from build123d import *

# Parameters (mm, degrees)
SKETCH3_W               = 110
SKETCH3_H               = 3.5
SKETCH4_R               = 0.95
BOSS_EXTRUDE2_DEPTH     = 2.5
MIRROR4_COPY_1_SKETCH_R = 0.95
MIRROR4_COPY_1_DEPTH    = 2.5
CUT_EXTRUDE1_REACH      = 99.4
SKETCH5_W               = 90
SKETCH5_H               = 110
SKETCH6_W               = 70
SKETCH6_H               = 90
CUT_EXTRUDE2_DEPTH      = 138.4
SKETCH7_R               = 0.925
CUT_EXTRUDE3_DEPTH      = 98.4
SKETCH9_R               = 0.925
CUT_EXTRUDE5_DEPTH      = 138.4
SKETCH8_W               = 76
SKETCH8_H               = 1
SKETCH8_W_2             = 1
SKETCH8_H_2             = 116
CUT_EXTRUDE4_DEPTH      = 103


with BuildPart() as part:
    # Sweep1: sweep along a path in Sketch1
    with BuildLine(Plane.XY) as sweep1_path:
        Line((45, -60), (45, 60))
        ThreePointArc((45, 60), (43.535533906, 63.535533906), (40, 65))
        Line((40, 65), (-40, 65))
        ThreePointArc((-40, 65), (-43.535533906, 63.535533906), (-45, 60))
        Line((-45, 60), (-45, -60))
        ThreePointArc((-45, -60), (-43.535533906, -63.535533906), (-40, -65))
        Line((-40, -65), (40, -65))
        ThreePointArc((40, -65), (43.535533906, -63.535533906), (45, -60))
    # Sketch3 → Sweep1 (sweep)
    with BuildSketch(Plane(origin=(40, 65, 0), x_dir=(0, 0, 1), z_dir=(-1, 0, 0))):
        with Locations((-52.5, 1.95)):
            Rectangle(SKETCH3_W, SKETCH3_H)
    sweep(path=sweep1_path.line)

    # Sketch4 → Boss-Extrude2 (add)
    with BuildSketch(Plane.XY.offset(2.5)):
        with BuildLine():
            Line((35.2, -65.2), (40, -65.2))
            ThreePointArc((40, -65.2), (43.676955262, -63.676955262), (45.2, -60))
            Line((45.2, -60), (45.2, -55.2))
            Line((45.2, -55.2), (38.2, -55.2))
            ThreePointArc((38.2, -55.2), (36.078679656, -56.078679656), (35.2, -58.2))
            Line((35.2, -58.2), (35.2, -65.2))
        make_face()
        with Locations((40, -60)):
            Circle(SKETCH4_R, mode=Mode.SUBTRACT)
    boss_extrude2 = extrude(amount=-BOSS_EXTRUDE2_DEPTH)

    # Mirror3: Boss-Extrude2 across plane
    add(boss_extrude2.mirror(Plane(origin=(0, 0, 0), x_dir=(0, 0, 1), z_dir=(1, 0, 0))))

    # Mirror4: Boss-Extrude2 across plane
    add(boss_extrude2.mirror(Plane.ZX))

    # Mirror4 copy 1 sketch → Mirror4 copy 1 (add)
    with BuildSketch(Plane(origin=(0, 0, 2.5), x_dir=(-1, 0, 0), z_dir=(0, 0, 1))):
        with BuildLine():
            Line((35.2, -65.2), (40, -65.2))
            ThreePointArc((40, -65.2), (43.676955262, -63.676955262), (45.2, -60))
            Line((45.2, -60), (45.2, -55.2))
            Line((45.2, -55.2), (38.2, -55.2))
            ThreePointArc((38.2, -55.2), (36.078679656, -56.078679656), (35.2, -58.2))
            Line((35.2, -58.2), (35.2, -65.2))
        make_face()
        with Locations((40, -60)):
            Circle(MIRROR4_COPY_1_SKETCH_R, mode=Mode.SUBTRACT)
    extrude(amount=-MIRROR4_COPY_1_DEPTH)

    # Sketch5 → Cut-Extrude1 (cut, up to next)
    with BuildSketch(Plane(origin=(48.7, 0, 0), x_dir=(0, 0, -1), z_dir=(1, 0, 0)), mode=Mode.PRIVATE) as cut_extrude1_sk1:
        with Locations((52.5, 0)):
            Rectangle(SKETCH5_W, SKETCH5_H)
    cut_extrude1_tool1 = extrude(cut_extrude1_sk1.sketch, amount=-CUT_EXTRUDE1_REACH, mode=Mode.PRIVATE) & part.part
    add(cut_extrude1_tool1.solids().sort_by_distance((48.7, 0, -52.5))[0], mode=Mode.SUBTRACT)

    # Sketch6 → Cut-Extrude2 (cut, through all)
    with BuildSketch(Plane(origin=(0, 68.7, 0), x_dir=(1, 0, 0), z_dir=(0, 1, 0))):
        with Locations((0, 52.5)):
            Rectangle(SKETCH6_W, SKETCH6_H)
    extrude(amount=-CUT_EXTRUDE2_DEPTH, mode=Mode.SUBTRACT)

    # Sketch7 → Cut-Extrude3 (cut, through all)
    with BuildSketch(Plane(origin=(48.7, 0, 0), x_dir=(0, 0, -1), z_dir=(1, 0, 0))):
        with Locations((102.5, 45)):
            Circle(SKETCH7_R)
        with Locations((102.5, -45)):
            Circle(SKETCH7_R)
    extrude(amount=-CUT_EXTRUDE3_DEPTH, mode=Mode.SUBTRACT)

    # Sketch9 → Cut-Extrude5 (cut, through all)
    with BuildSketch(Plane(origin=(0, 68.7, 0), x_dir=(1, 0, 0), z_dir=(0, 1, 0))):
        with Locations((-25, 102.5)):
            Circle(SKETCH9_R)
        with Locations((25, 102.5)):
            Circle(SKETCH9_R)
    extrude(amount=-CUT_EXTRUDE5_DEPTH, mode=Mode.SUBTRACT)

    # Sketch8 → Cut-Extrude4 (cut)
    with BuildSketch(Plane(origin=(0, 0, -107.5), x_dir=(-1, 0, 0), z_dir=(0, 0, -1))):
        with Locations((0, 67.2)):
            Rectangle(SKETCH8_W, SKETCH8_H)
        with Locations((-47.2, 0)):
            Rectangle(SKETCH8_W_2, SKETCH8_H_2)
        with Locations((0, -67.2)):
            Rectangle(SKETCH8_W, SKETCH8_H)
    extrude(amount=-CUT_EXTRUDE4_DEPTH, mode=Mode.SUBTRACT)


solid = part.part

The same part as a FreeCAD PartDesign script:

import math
import FreeCAD as App
import Part
import Sketcher
from FreeCAD import Vector
Q = App.Units.Quantity


def add_polygon(sketch, points):
    """Adds a closed chain of lines whose ends are joined by coincident constraints."""
    first, n = sketch.GeometryCount, len(points)
    for a, b in zip(points, points[1:] + points[:1]):
        sketch.addGeometry(Part.LineSegment(App.Vector(*a, 0), App.Vector(*b, 0)), False)
    for i in range(n):
        sketch.addConstraint(Sketcher.Constraint("Coincident", first + i, 2, first + (i + 1) % n, 1))

doc = App.newDocument("Part")
body = doc.addObject("PartDesign::Body", "Body")

# Sketch on YZ plane
sketch1 = body.newObject("Sketcher::SketchObject", "Sketch")
sketch1.AttachmentSupport = (doc.getObject("YZ_Plane"), [""])
sketch1.MapMode = "FlatFace"
sketch1.AttachmentOffset = App.Placement(Vector(0, 0, 40), App.Rotation())
add_polygon(sketch1, [(68.7, -107.5), (65.2, -107.5), (65.2, 2.5), (68.7, 2.5)])  # lines 0-3
sketch1.addConstraint(Sketcher.Constraint("Horizontal", 0))
sketch1.addConstraint(Sketcher.Constraint("Vertical", 1))
sketch1.addConstraint(Sketcher.Constraint("Horizontal", 2))
sketch1.addConstraint(Sketcher.Constraint("Vertical", 3))
sketch1.addConstraint(Sketcher.Constraint("DistanceY", 1, 1, 1, 2, Q("110 mm")))
sketch1.addConstraint(Sketcher.Constraint("DistanceX", 0, 2, 0, 1, Q("3.5 mm")))
sketch1.addConstraint(Sketcher.Constraint("DistanceX", -1, 1, 0, 2, Q("65.2 mm")))
sketch1.addConstraint(Sketcher.Constraint("DistanceY", 0, 2, -1, 1, Q("107.5 mm")))

# Sketch on XY plane
sketch2 = body.newObject("Sketcher::SketchObject", "Sketch001")
sketch2.AttachmentSupport = (doc.getObject("XY_Plane"), [""])
sketch2.MapMode = "FlatFace"
sketch2.addGeometry(Part.LineSegment(Vector(45, -60, 0), Vector(45, 60, 0)), False)
sketch2.addGeometry(Part.ArcOfCircle(Part.Circle(Vector(40, 60, 0), Vector(0, 0, 1), 5), math.radians(0), math.radians(90)), False)
sketch2.addGeometry(Part.LineSegment(Vector(40, 65, 0), Vector(-40, 65, 0)), False)
sketch2.addGeometry(Part.ArcOfCircle(Part.Circle(Vector(-40, 60, 0), Vector(0, 0, 1), 5), math.radians(90), math.radians(180)), False)
sketch2.addGeometry(Part.LineSegment(Vector(-45, 60, 0), Vector(-45, -60, 0)), False)
sketch2.addGeometry(Part.ArcOfCircle(Part.Circle(Vector(-40, -60, 0), Vector(0, 0, 1), 5), math.radians(180), math.radians(270)), False)
sketch2.addGeometry(Part.LineSegment(Vector(-40, -65, 0), Vector(40, -65, 0)), False)
sketch2.addGeometry(Part.ArcOfCircle(Part.Circle(Vector(40, -60, 0), Vector(0, 0, 1), 5), math.radians(-90), math.radians(0)), False)
sketch2.addConstraint(Sketcher.Constraint("Tangent", 0, 2, 1, 1))
sketch2.addConstraint(Sketcher.Constraint("Tangent", 1, 2, 2, 1))
sketch2.addConstraint(Sketcher.Constraint("Tangent", 2, 2, 3, 1))
sketch2.addConstraint(Sketcher.Constraint("Tangent", 3, 2, 4, 1))
sketch2.addConstraint(Sketcher.Constraint("Tangent", 4, 2, 5, 1))
sketch2.addConstraint(Sketcher.Constraint("Tangent", 5, 2, 6, 1))
sketch2.addConstraint(Sketcher.Constraint("Tangent", 6, 2, 7, 1))
sketch2.addConstraint(Sketcher.Constraint("Tangent", 7, 2, 0, 1))
sketch2.addConstraint(Sketcher.Constraint("Vertical", 0))
sketch2.addConstraint(Sketcher.Constraint("Horizontal", 2))
sketch2.addConstraint(Sketcher.Constraint("Vertical", 4))
sketch2.addConstraint(Sketcher.Constraint("Horizontal", 6))
sketch2.addConstraint(Sketcher.Constraint("Equal", 1, 3))
sketch2.addConstraint(Sketcher.Constraint("Equal", 3, 5))
sketch2.addConstraint(Sketcher.Constraint("Equal", 5, 7))
sketch2.addConstraint(Sketcher.Constraint("Symmetric", 1, 3, 5, 3, -1, 1))
sketch2.addConstraint(Sketcher.Constraint("Radius", 1, Q("5 mm")))
sketch2.addConstraint(Sketcher.Constraint("DistanceX", 2, 2, 2, 1, Q("80 mm")))
sketch2.addConstraint(Sketcher.Constraint("DistanceY", 0, 1, 0, 2, Q("120 mm")))
doc.recompute()

additivepipe = body.newObject("PartDesign::AdditivePipe", "AdditivePipe")
additivepipe.Profile = sketch1
additivepipe.Spine = (sketch2, ["Edge1", "Edge2", "Edge3", "Edge4", "Edge5", "Edge6", "Edge7", "Edge8"])

# Sketch on XY plane
sketch3 = body.newObject("Sketcher::SketchObject", "Sketch002")
sketch3.AttachmentSupport = (doc.getObject("XY_Plane"), [""])
sketch3.MapMode = "FlatFace"
sketch3.AttachmentOffset = App.Placement(Vector(0, 0, 2.5), App.Rotation())
sketch3.addGeometry(Part.LineSegment(Vector(35.2, -65.2, 0), Vector(40, -65.2, 0)), False)
sketch3.addGeometry(Part.ArcOfCircle(Part.Circle(Vector(40, -60, 0), Vector(0, 0, 1), 5.2), math.radians(-90), math.radians(0)), False)
sketch3.addGeometry(Part.LineSegment(Vector(45.2, -60, 0), Vector(45.2, -55.2, 0)), False)
sketch3.addGeometry(Part.LineSegment(Vector(45.2, -55.2, 0), Vector(38.2, -55.2, 0)), False)
sketch3.addGeometry(Part.ArcOfCircle(Part.Circle(Vector(38.2, -58.2, 0), Vector(0, 0, 1), 3), math.radians(90), math.radians(180)), False)
sketch3.addGeometry(Part.LineSegment(Vector(35.2, -58.2, 0), Vector(35.2, -65.2, 0)), False)
sketch3.addGeometry(Part.Circle(Vector(40, -60, 0), Vector(0, 0, 1), 0.95), False)
sketch3.addConstraint(Sketcher.Constraint("Tangent", 0, 2, 1, 1))
sketch3.addConstraint(Sketcher.Constraint("Tangent", 1, 2, 2, 1))
sketch3.addConstraint(Sketcher.Constraint("Coincident", 2, 2, 3, 1))
sketch3.addConstraint(Sketcher.Constraint("Tangent", 3, 2, 4, 1))
sketch3.addConstraint(Sketcher.Constraint("Tangent", 4, 2, 5, 1))
sketch3.addConstraint(Sketcher.Constraint("Coincident", 5, 2, 0, 1))
sketch3.addConstraint(Sketcher.Constraint("Horizontal", 0))
sketch3.addConstraint(Sketcher.Constraint("Vertical", 2))
sketch3.addConstraint(Sketcher.Constraint("Horizontal", 3))
sketch3.addConstraint(Sketcher.Constraint("Vertical", 5))
sketch3.addConstraint(Sketcher.Constraint("Coincident", 6, 3, 1, 3))
sketch3.addConstraint(Sketcher.Constraint("Equal", 0, 2))
sketch3.addConstraint(Sketcher.Constraint("Radius", 4, Q("3 mm")))
sketch3.addConstraint(Sketcher.Constraint("Diameter", 6, Q("1.9 mm")))
sketch3.addConstraint(Sketcher.Constraint("Radius", 1, Q("5.2 mm")))
sketch3.addConstraint(Sketcher.Constraint("DistanceX", 3, 2, 3, 1, Q("7 mm")))
sketch3.addConstraint(Sketcher.Constraint("DistanceX", -1, 1, 1, 3, Q("40 mm")))
sketch3.addConstraint(Sketcher.Constraint("DistanceY", 1, 3, -1, 1, Q("60 mm")))
pad1 = body.newObject("PartDesign::Pad", "Pad")
pad1.Profile = sketch3
pad1.Length = 2.5
pad1.Reversed = True
doc.recompute()

mirrored = body.newObject("PartDesign::Mirrored", "Mirrored")
mirrored.Originals = [pad1]
mirrored.MirrorPlane = (doc.getObject("YZ_Plane"), [""])
body.Tip = mirrored
doc.recompute()

mirrored2 = body.newObject("PartDesign::Mirrored", "Mirrored001")
mirrored2.Originals = [pad1]
mirrored2.MirrorPlane = (doc.getObject("XZ_Plane"), [""])
body.Tip = mirrored2

# Sketch on XY plane
sketch4 = body.newObject("Sketcher::SketchObject", "Sketch003")
sketch4.AttachmentSupport = (doc.getObject("XY_Plane"), [""])
sketch4.MapMode = "FlatFace"
sketch4.AttachmentOffset = App.Placement(Vector(0, 0, 2.5), App.Rotation())
sketch4.addGeometry(Part.LineSegment(Vector(-35.2, 65.2, 0), Vector(-40, 65.2, 0)), False)
sketch4.addGeometry(Part.ArcOfCircle(Part.Circle(Vector(-40, 60, 0), Vector(0, 0, 1), 5.2), math.radians(90), math.radians(180)), False)
sketch4.addGeometry(Part.LineSegment(Vector(-45.2, 60, 0), Vector(-45.2, 55.2, 0)), False)
sketch4.addGeometry(Part.LineSegment(Vector(-45.2, 55.2, 0), Vector(-38.2, 55.2, 0)), False)
sketch4.addGeometry(Part.ArcOfCircle(Part.Circle(Vector(-38.2, 58.2, 0), Vector(0, 0, 1), 3), math.radians(-90), math.radians(0)), False)
sketch4.addGeometry(Part.LineSegment(Vector(-35.2, 58.2, 0), Vector(-35.2, 65.2, 0)), False)
sketch4.addGeometry(Part.Circle(Vector(-40, 60, 0), Vector(0, 0, 1), 0.95), False)
sketch4.addConstraint(Sketcher.Constraint("Tangent", 0, 2, 1, 1))
sketch4.addConstraint(Sketcher.Constraint("Tangent", 1, 2, 2, 1))
sketch4.addConstraint(Sketcher.Constraint("Coincident", 2, 2, 3, 1))
sketch4.addConstraint(Sketcher.Constraint("Tangent", 3, 2, 4, 1))
sketch4.addConstraint(Sketcher.Constraint("Tangent", 4, 2, 5, 1))
sketch4.addConstraint(Sketcher.Constraint("Coincident", 5, 2, 0, 1))
sketch4.addConstraint(Sketcher.Constraint("Horizontal", 0))
sketch4.addConstraint(Sketcher.Constraint("Vertical", 2))
sketch4.addConstraint(Sketcher.Constraint("Horizontal", 3))
sketch4.addConstraint(Sketcher.Constraint("Vertical", 5))
sketch4.addConstraint(Sketcher.Constraint("Coincident", 6, 3, 1, 3))
sketch4.addConstraint(Sketcher.Constraint("Equal", 0, 2))
sketch4.addConstraint(Sketcher.Constraint("Radius", 4, Q("3 mm")))
sketch4.addConstraint(Sketcher.Constraint("Diameter", 6, Q("1.9 mm")))
sketch4.addConstraint(Sketcher.Constraint("Radius", 1, Q("5.2 mm")))
sketch4.addConstraint(Sketcher.Constraint("DistanceX", 3, 1, 3, 2, Q("7 mm")))
sketch4.addConstraint(Sketcher.Constraint("DistanceX", 1, 3, -1, 1, Q("40 mm")))
sketch4.addConstraint(Sketcher.Constraint("DistanceY", -1, 1, 1, 3, Q("60 mm")))
pad2 = body.newObject("PartDesign::Pad", "Pad001")
pad2.Profile = sketch4
pad2.Length = 2.5
pad2.Reversed = True

# Sketch on YZ plane
sketch5 = body.newObject("Sketcher::SketchObject", "Sketch004")
sketch5.AttachmentSupport = (doc.getObject("YZ_Plane"), [""])
sketch5.MapMode = "FlatFace"
sketch5.AttachmentOffset = App.Placement(Vector(0, 0, 48.7), App.Rotation())
add_polygon(sketch5, [(55, -7.5), (-55, -7.5), (-55, -97.5), (55, -97.5)])  # lines 0-3
sketch5.addConstraint(Sketcher.Constraint("Horizontal", 0))
sketch5.addConstraint(Sketcher.Constraint("Vertical", 1))
sketch5.addConstraint(Sketcher.Constraint("Horizontal", 2))
sketch5.addConstraint(Sketcher.Constraint("Vertical", 3))
sketch5.addConstraint(Sketcher.Constraint("DistanceX", 0, 2, 0, 1, Q("110 mm")))
sketch5.addConstraint(Sketcher.Constraint("DistanceY", 1, 2, 1, 1, Q("90 mm")))
sketch5.addConstraint(Sketcher.Constraint("DistanceX", 0, 2, -1, 1, Q("55 mm")))
sketch5.addConstraint(Sketcher.Constraint("DistanceY", 0, 2, -1, 1, Q("7.5 mm")))
pocket1 = body.newObject("PartDesign::Pocket", "Pocket")
pocket1.Profile = sketch5
pocket1.Type = "UpToFirst"

# Sketch on XZ plane
sketch6 = body.newObject("Sketcher::SketchObject", "Sketch005")
sketch6.AttachmentSupport = (doc.getObject("XZ_Plane"), [""])
sketch6.MapMode = "FlatFace"
sketch6.AttachmentOffset = App.Placement(Vector(0, 0, -68.7), App.Rotation())
add_polygon(sketch6, [(-35, -97.5), (-35, -7.5), (35, -7.5), (35, -97.5)])  # lines 0-3
sketch6.addConstraint(Sketcher.Constraint("Vertical", 0))
sketch6.addConstraint(Sketcher.Constraint("Horizontal", 1))
sketch6.addConstraint(Sketcher.Constraint("Vertical", 2))
sketch6.addConstraint(Sketcher.Constraint("Horizontal", 3))
sketch6.addConstraint(Sketcher.Constraint("DistanceX", 1, 1, 1, 2, Q("70 mm")))
sketch6.addConstraint(Sketcher.Constraint("DistanceY", 0, 1, 0, 2, Q("90 mm")))
sketch6.addConstraint(Sketcher.Constraint("DistanceX", 0, 2, -1, 1, Q("35 mm")))
sketch6.addConstraint(Sketcher.Constraint("DistanceY", 0, 2, -1, 1, Q("7.5 mm")))
pocket2 = body.newObject("PartDesign::Pocket", "Pocket001")
pocket2.Profile = sketch6
pocket2.Type = "ThroughAll"
pocket2.Reversed = True

# Sketch on YZ plane
sketch7 = body.newObject("Sketcher::SketchObject", "Sketch006")
sketch7.AttachmentSupport = (doc.getObject("YZ_Plane"), [""])
sketch7.MapMode = "FlatFace"
sketch7.AttachmentOffset = App.Placement(Vector(0, 0, 48.7), App.Rotation())
sketch7.addGeometry(Part.Circle(Vector(45, -102.5, 0), Vector(0, 0, 1), 0.925), False)
sketch7.addGeometry(Part.Circle(Vector(-45, -102.5, 0), Vector(0, 0, 1), 0.925), False)
sketch7.addConstraint(Sketcher.Constraint("Equal", 0, 1))
sketch7.addConstraint(Sketcher.Constraint("Symmetric", 0, 3, 1, 3, -2))
sketch7.addConstraint(Sketcher.Constraint("Diameter", 0, Q("1.85 mm")))
sketch7.addConstraint(Sketcher.Constraint("DistanceX", -1, 1, 0, 3, Q("45 mm")))
sketch7.addConstraint(Sketcher.Constraint("DistanceY", 0, 3, -1, 1, Q("102.5 mm")))
pocket3 = body.newObject("PartDesign::Pocket", "Pocket002")
pocket3.Profile = sketch7
pocket3.Type = "ThroughAll"

# Sketch on XZ plane
sketch8 = body.newObject("Sketcher::SketchObject", "Sketch007")
sketch8.AttachmentSupport = (doc.getObject("XZ_Plane"), [""])
sketch8.MapMode = "FlatFace"
sketch8.AttachmentOffset = App.Placement(Vector(0, 0, -68.7), App.Rotation())
sketch8.addGeometry(Part.Circle(Vector(-25, -102.5, 0), Vector(0, 0, 1), 0.925), False)
sketch8.addGeometry(Part.Circle(Vector(25, -102.5, 0), Vector(0, 0, 1), 0.925), False)
sketch8.addConstraint(Sketcher.Constraint("Equal", 0, 1))
sketch8.addConstraint(Sketcher.Constraint("Symmetric", 0, 3, 1, 3, -2))
sketch8.addConstraint(Sketcher.Constraint("Diameter", 0, Q("1.85 mm")))
sketch8.addConstraint(Sketcher.Constraint("DistanceX", 0, 3, -1, 1, Q("25 mm")))
sketch8.addConstraint(Sketcher.Constraint("DistanceY", 0, 3, -1, 1, Q("102.5 mm")))
pocket4 = body.newObject("PartDesign::Pocket", "Pocket003")
pocket4.Profile = sketch8
pocket4.Type = "ThroughAll"
pocket4.Reversed = True

# Sketch on XY plane
sketch9 = body.newObject("Sketcher::SketchObject", "Sketch008")
sketch9.AttachmentSupport = (doc.getObject("XY_Plane"), [""])
sketch9.MapMode = "FlatFace"
sketch9.AttachmentOffset = App.Placement(Vector(0, 0, -107.5), App.Rotation())
add_polygon(sketch9, [(38, 67.7), (38, 66.7), (-38, 66.7), (-38, 67.7)])  # lines 0-3
add_polygon(sketch9, [(47.7, 58), (47.7, -58), (46.7, -58), (46.7, 58)])  # lines 4-7
add_polygon(sketch9, [(38, -66.7), (38, -67.7), (-38, -67.7), (-38, -66.7)])  # lines 8-11
sketch9.addConstraint(Sketcher.Constraint("Vertical", 0))
sketch9.addConstraint(Sketcher.Constraint("Horizontal", 1))
sketch9.addConstraint(Sketcher.Constraint("Vertical", 2))
sketch9.addConstraint(Sketcher.Constraint("Horizontal", 3))
sketch9.addConstraint(Sketcher.Constraint("Vertical", 4))
sketch9.addConstraint(Sketcher.Constraint("Horizontal", 5))
sketch9.addConstraint(Sketcher.Constraint("Vertical", 6))
sketch9.addConstraint(Sketcher.Constraint("Horizontal", 7))
sketch9.addConstraint(Sketcher.Constraint("Vertical", 8))
sketch9.addConstraint(Sketcher.Constraint("Horizontal", 9))
sketch9.addConstraint(Sketcher.Constraint("Vertical", 10))
sketch9.addConstraint(Sketcher.Constraint("Horizontal", 11))
sketch9.addConstraint(Sketcher.Constraint("Symmetric", 2, 2, 8, 2, -1, 1))
sketch9.addConstraint(Sketcher.Constraint("Symmetric", 0, 2, 10, 2, -1, 1))
sketch9.addConstraint(Sketcher.Constraint("Vertical", 3, 2, 8, 2))
sketch9.addConstraint(Sketcher.Constraint("Equal", 7, 0))
sketch9.addConstraint(Sketcher.Constraint("DistanceX", 1, 2, 1, 1, Q("76 mm")))
sketch9.addConstraint(Sketcher.Constraint("DistanceX", 5, 2, 5, 1, Q("1 mm")))
sketch9.addConstraint(Sketcher.Constraint("DistanceY", 4, 2, 4, 1, Q("116 mm")))
sketch9.addConstraint(Sketcher.Constraint("DistanceY", 4, 2, -1, 1, Q("58 mm")))
sketch9.addConstraint(Sketcher.Constraint("DistanceY", -1, 1, 0, 2, Q("66.7 mm")))
sketch9.addConstraint(Sketcher.Constraint("DistanceX", -1, 1, 4, 2, Q("47.7 mm")))
pocket5 = body.newObject("PartDesign::Pocket", "Pocket004")
pocket5.Profile = sketch9
pocket5.Length = 103
pocket5.Reversed = True

doc.recompute()
